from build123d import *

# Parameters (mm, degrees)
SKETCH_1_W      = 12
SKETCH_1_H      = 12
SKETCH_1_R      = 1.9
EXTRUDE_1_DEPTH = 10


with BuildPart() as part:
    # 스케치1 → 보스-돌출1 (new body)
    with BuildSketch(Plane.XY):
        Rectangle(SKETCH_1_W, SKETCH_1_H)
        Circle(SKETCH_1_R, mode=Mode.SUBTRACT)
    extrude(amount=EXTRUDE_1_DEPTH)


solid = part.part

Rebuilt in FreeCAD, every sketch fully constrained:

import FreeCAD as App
import Part
import Sketcher
from FreeCAD import Vector
Q = App.Units.Quantity

doc = App.newDocument("Part")
body = doc.addObject("PartDesign::Body", "Body")

sketch1 = body.newObject("Sketcher::SketchObject", "Sketch")
sketch1.AttachmentSupport = (doc.getObject("XY_Plane"), [""])
sketch1.MapMode = "FlatFace"
sketch1.addGeometry([
    Part.LineSegment(Vector(-6, 6, 0), Vector(-6, -6, 0)),
    Part.LineSegment(Vector(-6, -6, 0), Vector(6, -6, 0)),
    Part.LineSegment(Vector(6, -6, 0), Vector(6, 6, 0)),
    Part.LineSegment(Vector(6, 6, 0), Vector(-6, 6, 0)),
    Part.Circle(Vector(0, 0, 0), Vector(0, 0, 1), 1.9),
], False)
sketch1.addConstraint([
    Sketcher.Constraint("Coincident", 0, 2, 1, 1),
    Sketcher.Constraint("Coincident", 1, 2, 2, 1),
    Sketcher.Constraint("Coincident", 2, 2, 3, 1),
    Sketcher.Constraint("Coincident", 3, 2, 0, 1),
    Sketcher.Constraint("Vertical", 0),
    Sketcher.Constraint("Horizontal", 1),
    Sketcher.Constraint("Vertical", 2),
    Sketcher.Constraint("Horizontal", 3),
    Sketcher.Constraint("Coincident", 4, 3, -1, 1),
    Sketcher.Constraint("Symmetric", 0, 2, 2, 2, -1, 1),
    Sketcher.Constraint("Equal", 3, 0),
    Sketcher.Constraint("Diameter", 4, Q("3.8 mm")),
    Sketcher.Constraint("DistanceX", 1, 1, 1, 2, Q("12 mm")),
])
pad1 = body.newObject("PartDesign::Pad", "Pad")
pad1.Profile = sketch1
pad1.Length = 10

doc.recompute()
